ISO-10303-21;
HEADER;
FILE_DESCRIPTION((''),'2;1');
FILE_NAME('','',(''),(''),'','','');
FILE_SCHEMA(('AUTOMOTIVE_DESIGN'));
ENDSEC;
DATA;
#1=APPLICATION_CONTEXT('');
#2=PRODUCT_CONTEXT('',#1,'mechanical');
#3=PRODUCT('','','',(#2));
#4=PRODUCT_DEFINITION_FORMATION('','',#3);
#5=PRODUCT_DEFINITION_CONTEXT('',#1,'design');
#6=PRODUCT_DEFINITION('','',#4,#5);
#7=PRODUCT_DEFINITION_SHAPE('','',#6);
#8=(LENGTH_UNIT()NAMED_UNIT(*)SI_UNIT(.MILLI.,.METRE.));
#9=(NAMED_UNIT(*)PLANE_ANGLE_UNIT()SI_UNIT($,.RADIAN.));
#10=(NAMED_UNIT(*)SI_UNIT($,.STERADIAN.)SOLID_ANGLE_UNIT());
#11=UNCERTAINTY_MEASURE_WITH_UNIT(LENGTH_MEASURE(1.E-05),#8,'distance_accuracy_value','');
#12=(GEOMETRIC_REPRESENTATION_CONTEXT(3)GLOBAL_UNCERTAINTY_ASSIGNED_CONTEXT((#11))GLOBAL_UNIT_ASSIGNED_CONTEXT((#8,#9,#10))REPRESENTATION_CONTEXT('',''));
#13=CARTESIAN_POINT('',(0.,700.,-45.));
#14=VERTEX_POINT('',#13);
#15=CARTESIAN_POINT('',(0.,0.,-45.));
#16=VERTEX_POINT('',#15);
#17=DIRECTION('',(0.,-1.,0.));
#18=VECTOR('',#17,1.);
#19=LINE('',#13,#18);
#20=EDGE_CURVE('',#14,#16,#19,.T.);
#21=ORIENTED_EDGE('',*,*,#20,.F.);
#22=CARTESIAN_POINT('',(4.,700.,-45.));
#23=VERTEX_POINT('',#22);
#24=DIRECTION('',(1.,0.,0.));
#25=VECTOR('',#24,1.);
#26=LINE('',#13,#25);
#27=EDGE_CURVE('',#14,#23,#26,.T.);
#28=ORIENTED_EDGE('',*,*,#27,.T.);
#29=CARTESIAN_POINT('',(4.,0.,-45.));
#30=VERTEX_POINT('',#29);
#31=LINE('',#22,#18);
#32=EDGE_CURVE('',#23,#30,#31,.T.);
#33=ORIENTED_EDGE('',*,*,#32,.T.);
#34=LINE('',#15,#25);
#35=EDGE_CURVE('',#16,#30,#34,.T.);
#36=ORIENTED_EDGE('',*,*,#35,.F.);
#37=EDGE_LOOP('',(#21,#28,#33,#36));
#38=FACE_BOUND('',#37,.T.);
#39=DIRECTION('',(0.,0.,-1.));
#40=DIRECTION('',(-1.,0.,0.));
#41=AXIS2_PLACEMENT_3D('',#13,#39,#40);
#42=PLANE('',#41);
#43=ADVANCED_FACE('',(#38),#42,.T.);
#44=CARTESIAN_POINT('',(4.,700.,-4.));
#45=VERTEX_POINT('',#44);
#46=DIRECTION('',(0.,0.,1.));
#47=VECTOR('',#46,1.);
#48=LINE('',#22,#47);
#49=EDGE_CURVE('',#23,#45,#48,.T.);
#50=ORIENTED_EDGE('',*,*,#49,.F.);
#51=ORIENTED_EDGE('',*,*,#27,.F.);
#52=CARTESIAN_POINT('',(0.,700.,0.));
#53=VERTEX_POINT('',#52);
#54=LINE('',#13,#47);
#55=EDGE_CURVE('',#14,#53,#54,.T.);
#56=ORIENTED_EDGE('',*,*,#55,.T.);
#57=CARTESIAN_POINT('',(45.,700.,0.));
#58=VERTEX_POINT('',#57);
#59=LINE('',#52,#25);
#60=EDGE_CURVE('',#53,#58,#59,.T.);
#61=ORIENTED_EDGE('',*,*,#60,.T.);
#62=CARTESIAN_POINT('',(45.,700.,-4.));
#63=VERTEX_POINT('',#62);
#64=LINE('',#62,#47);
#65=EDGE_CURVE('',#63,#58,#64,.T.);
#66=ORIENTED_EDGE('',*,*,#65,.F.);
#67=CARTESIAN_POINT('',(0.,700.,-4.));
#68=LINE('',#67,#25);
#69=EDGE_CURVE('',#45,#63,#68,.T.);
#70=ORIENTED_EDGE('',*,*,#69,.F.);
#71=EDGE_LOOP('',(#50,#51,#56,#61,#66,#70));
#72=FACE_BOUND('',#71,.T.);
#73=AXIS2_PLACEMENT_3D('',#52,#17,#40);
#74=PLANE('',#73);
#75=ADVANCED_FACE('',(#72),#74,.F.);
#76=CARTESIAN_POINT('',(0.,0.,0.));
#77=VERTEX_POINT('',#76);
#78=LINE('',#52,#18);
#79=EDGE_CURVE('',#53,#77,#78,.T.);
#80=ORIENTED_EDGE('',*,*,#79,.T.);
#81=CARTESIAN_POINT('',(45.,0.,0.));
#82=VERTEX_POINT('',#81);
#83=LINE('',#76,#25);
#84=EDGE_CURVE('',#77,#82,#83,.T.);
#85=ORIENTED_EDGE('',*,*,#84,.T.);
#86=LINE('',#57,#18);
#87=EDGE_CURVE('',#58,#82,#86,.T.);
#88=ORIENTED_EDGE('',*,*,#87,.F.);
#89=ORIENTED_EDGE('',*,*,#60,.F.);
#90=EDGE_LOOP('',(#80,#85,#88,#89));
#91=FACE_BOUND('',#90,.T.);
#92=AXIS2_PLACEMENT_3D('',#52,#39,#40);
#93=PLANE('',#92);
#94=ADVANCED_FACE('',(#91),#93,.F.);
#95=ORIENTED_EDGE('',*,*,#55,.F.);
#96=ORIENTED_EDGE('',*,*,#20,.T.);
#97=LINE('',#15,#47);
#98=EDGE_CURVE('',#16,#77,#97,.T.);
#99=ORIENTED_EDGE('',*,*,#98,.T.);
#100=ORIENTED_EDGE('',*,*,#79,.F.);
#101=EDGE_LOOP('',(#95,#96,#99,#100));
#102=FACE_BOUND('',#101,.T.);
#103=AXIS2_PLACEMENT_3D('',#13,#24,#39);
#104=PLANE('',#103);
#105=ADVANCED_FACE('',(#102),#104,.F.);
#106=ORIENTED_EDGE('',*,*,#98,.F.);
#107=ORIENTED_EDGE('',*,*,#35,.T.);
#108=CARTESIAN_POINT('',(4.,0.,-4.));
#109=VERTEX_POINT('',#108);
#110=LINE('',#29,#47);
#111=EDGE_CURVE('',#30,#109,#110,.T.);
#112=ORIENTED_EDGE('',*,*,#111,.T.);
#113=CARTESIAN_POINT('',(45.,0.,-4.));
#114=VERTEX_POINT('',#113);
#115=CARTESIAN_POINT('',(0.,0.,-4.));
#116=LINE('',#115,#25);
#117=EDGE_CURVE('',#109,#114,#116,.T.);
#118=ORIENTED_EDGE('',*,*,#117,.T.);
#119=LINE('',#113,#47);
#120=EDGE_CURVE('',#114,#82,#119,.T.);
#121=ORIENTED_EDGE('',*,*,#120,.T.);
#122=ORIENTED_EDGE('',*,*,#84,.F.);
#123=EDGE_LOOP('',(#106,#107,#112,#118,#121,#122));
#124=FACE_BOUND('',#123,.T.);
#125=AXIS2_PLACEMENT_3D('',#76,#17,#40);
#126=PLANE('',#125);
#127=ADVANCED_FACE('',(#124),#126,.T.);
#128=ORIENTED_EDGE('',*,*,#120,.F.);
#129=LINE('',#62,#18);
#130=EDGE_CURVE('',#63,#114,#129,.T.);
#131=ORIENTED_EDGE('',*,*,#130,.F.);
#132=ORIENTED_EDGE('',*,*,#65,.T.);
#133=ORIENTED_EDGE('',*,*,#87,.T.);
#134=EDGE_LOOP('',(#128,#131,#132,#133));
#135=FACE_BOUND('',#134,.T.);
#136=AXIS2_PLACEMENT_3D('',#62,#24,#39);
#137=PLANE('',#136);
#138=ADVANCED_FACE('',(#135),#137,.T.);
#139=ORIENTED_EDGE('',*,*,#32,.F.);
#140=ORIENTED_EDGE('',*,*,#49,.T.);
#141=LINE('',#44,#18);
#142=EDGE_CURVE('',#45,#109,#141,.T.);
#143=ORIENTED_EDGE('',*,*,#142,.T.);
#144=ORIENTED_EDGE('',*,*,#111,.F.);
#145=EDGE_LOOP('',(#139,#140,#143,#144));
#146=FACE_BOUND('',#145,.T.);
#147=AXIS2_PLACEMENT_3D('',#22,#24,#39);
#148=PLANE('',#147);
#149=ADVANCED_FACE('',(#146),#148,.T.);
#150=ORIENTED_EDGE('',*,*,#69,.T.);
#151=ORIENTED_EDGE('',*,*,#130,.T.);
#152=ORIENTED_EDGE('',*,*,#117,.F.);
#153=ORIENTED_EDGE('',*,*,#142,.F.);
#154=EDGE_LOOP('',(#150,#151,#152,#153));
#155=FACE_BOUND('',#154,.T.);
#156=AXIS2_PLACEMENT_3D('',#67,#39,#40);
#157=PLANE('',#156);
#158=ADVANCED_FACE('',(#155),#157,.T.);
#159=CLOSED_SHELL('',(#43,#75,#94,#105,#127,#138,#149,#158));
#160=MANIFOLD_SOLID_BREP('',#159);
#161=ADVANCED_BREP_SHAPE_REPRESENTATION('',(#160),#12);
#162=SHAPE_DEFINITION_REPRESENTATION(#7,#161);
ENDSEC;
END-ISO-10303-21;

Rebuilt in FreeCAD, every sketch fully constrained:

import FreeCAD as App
import Part
import Sketcher
from FreeCAD import Vector
Q = App.Units.Quantity


def add_polygon(sketch, points):
    """Adds a closed chain of lines whose ends are joined by coincident constraints."""
    first, n = sketch.GeometryCount, len(points)
    for a, b in zip(points, points[1:] + points[:1]):
        sketch.addGeometry(Part.LineSegment(App.Vector(*a, 0), App.Vector(*b, 0)), False)
    for i in range(n):
        sketch.addConstraint(Sketcher.Constraint("Coincident", first + i, 2, first + (i + 1) % n, 1))

doc = App.newDocument("Part")
params = doc.addObject("Spreadsheet::Sheet", "Params")
for row, (alias, value) in enumerate([
    ("sketch1_width", "45 mm"),
    ("sketch1_width2", "41 mm"),
    ("pad1_length", "700 mm"),
], start=1):
    params.set(f"A{row}", alias)
    params.set(f"B{row}", "=" + value)
    params.setAlias(f"B{row}", alias)

body = doc.addObject("PartDesign::Body", "Body")

# Sketch on XZ plane
sketch1 = body.newObject("Sketcher::SketchObject", "Sketch")
sketch1.AttachmentSupport = (doc.getObject("XZ_Plane"), [""])
sketch1.MapMode = "FlatFace"
add_polygon(sketch1, [(0, -45), (0, 0), (45, 0), (45, -4), (4, -4), (4, -45)])  # lines 0-5
sketch1.addConstraint([
    Sketcher.Constraint("Vertical", 0),
    Sketcher.Constraint("Horizontal", 1),
    Sketcher.Constraint("Vertical", 2),
    Sketcher.Constraint("Horizontal", 3),
    Sketcher.Constraint("Vertical", 4),
    Sketcher.Constraint("Horizontal", 5),
    Sketcher.Constraint("Coincident", 0, 2, -1, 1),
    Sketcher.Constraint("Equal", 1, 0),
    Sketcher.Constraint("Equal", 5, 2),
    Sketcher.Constraint("DistanceX", 1, 1, 1, 2, Q("45 mm")),
    Sketcher.Constraint("DistanceX", 3, 2, 3, 1, Q("41 mm")),
])
sketch1.setExpression("Constraints[15]", "Params.sketch1_width")
sketch1.setExpression("Constraints[16]", "Params.sketch1_width2")
pad1 = body.newObject("PartDesign::Pad", "Pad")
pad1.Profile = sketch1
pad1.setExpression("Length", "Params.pad1_length")
pad1.Reversed = True

doc.recompute()
